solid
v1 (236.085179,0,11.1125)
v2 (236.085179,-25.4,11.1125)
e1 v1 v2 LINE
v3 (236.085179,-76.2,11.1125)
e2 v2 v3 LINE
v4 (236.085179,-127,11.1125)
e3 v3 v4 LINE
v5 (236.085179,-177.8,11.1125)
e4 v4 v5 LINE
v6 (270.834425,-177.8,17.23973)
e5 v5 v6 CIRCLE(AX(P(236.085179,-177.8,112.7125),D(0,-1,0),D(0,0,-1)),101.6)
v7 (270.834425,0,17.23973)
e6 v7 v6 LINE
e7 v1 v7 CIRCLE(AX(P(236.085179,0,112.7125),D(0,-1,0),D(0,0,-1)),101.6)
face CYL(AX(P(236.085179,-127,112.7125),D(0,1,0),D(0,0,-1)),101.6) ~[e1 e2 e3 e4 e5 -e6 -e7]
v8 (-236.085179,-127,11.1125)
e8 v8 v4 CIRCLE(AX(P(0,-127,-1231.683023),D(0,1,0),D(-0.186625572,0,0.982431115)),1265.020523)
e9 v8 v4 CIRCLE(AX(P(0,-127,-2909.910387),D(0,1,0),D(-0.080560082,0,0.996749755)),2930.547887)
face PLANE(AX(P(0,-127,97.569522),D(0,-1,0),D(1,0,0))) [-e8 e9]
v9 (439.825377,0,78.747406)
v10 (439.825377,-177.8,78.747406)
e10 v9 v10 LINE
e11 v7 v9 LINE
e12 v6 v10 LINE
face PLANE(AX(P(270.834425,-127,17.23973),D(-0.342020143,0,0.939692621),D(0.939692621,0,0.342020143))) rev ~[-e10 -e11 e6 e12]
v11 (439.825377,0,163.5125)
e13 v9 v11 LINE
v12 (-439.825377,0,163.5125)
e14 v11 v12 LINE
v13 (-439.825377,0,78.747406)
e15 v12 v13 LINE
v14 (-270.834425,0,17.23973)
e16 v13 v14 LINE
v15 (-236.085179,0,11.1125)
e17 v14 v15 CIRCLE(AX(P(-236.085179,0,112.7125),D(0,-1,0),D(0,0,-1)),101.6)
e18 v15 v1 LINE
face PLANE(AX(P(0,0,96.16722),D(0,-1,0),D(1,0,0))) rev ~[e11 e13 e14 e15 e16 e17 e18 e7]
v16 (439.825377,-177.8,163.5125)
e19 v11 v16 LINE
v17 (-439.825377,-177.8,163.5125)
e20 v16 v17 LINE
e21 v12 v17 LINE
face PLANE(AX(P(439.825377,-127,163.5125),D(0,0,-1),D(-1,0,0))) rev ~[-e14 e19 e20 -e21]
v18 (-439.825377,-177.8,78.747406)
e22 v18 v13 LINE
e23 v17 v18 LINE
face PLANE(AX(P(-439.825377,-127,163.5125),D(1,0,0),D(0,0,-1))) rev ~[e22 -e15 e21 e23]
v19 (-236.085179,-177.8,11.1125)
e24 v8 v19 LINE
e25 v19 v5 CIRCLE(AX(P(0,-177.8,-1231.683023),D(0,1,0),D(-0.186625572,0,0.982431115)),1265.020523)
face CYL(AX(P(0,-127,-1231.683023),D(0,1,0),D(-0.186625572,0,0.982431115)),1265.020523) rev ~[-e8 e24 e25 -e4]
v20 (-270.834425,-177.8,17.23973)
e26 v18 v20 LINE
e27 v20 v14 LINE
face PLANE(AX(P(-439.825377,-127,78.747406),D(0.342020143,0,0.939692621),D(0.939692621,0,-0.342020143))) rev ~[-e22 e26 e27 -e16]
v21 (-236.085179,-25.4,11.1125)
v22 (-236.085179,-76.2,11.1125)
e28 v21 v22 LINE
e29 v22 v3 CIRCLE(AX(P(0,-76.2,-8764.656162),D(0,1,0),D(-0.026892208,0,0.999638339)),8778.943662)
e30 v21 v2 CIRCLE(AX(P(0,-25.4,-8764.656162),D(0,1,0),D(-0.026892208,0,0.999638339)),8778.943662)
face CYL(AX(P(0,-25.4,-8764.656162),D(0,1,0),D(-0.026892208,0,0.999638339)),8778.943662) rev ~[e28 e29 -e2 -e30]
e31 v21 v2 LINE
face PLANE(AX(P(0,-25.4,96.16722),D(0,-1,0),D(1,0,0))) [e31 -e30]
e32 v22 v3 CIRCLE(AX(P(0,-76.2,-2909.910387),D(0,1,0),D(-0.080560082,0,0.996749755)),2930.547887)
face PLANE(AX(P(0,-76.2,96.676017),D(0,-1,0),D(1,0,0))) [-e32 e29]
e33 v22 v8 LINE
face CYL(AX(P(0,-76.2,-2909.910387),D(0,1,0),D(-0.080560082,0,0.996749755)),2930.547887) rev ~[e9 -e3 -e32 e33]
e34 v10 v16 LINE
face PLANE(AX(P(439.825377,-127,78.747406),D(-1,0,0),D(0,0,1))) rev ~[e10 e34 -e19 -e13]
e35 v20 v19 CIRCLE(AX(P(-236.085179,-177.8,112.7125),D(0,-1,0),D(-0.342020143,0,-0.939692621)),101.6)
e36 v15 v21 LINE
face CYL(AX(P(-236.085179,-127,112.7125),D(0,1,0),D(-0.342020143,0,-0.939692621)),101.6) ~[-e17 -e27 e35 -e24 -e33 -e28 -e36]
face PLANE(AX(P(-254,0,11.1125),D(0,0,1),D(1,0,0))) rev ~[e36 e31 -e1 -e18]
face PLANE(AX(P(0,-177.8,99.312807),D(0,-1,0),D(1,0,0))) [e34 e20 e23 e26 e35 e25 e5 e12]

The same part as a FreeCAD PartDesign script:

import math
import FreeCAD as App
import Part
import Sketcher
from FreeCAD import Vector
Q = App.Units.Quantity


def edges_at(feature, points):
    """Names of the edges that pass closest to the given points."""
    edges = feature.Shape.Edges
    near = lambda p: min(range(len(edges)), key=lambda i: edges[i].distToShape(Part.Vertex(*p))[0])
    return sorted({f"Edge{near(p) + 1}" for p in points})


def add_polygon(sketch, points):
    """Adds a closed chain of lines whose ends are joined by coincident constraints."""
    first, n = sketch.GeometryCount, len(points)
    for a, b in zip(points, points[1:] + points[:1]):
        sketch.addGeometry(Part.LineSegment(App.Vector(*a, 0), App.Vector(*b, 0)), False)
    for i in range(n):
        sketch.addConstraint(Sketcher.Constraint("Coincident", first + i, 2, first + (i + 1) % n, 1))

doc = App.newDocument("Part")
params = doc.addObject("Spreadsheet::Sheet", "Params")
for row, (alias, value) in enumerate([
    ("sketch1_width", "20 in"),
    ("pad1_length", "1 in"),
    ("fillet_radius", "4 in"),
    ("sketch2_radius", "4 in"),
    ("pad2_length", "2 in"),
    ("sketch3_radius", "4 in"),
    ("pad3_length", "2 in"),
    ("sketch4_radius", "4 in"),
    ("pad4_length", "2 in"),
], start=1):
    params.set(f"A{row}", alias)
    params.set(f"B{row}", "=" + value)
    params.setAlias(f"B{row}", alias)

body = doc.addObject("PartDesign::Body", "Body")

sketch1 = body.newObject("Sketcher::SketchObject", "Sketch")
sketch1.AttachmentSupport = (doc.getObject("XZ_Plane"), [""])
sketch1.MapMode = "FlatFace"
add_polygon(sketch1, [(-440, 79), (-254, 11), (254, 11), (440, 79), (440, 164), (-440, 164)])
sketch1.addConstraint([
    Sketcher.Constraint("Horizontal", 1),
    Sketcher.Constraint("Vertical", 3),
    Sketcher.Constraint("Horizontal", 4),
    Sketcher.Constraint("Vertical", 5),
    Sketcher.Constraint("Symmetric", 2, 2, 5, 2, -2),
    Sketcher.Constraint("Equal", 0, 2),
    Sketcher.Constraint("DistanceX", 1, 1, 1, 2, Q("20 in")),
    Sketcher.Constraint("Angle", 0, Q("-20 deg")),
    Sketcher.Constraint("DistanceY", 1, 2, 3, 2, Q("6 in")),
    Sketcher.Constraint("DistanceY", -1, 1, 0, 2, Q("0.4375 in")),
    Sketcher.Constraint("DistanceX", 4, 2, 4, 1, 879.650753),
])
sketch1.setExpression("Constraints[12]", "Params.sketch1_width")
pad1 = body.newObject("PartDesign::Pad", "Pad")
pad1.Profile = sketch1
pad1.setExpression("Length", "Params.pad1_length")
doc.recompute()

fillet = body.newObject("PartDesign::Fillet", "Fillet")
fillet.Base = (pad1, edges_at(pad1, [(-254, -12.7, 11.113), (254, -12.7, 11.113)]))
fillet.setExpression("Radius", "Params.fillet_radius")

sketch2 = body.newObject("Sketcher::SketchObject", "Sketch001")
sketch2.AttachmentSupport = (doc.getObject("XZ_Plane"), [""])
sketch2.MapMode = "FlatFace"
sketch2.AttachmentOffset = App.Placement(Vector(0, 0, 1 * 25.4), App.Rotation())
sketch2.addGeometry([
    Part.ArcOfCircle(Part.Circle(Vector(0, -8765, 0), Vector(0, 0, 1), 8779), math.radians(88.46), math.radians(91.54)),
    Part.ArcOfCircle(Part.Circle(Vector(236, 113, 0), Vector(0, 0, 1), 102), math.radians(-90), math.radians(-70)),
    Part.LineSegment(Vector(271, 17, 0), Vector(440, 79, 0)),
    Part.LineSegment(Vector(440, 79, 0), Vector(440, 164, 0)),
    Part.LineSegment(Vector(440, 164, 0), Vector(-440, 164, 0)),
    Part.LineSegment(Vector(-440, 164, 0), Vector(-440, 79, 0)),
    Part.LineSegment(Vector(-440, 79, 0), Vector(-271, 17, 0)),
    Part.ArcOfCircle(Part.Circle(Vector(-236, 113, 0), Vector(0, 0, 1), 102), math.radians(-110), math.radians(-90)),
], False)
sketch2.addConstraint([
    Sketcher.Constraint("Coincident", 0, 1, 1, 1),
    Sketcher.Constraint("Tangent", 1, 2, 2, 1),
    Sketcher.Constraint("Coincident", 2, 2, 3, 1),
    Sketcher.Constraint("Coincident", 3, 2, 4, 1),
    Sketcher.Constraint("Coincident", 4, 2, 5, 1),
    Sketcher.Constraint("Coincident", 5, 2, 6, 1),
    Sketcher.Constraint("Tangent", 6, 2, 7, 1),
    Sketcher.Constraint("Coincident", 7, 2, 0, 2),
    Sketcher.Constraint("Vertical", 3),
    Sketcher.Constraint("Horizontal", 4),
    Sketcher.Constraint("Vertical", 5),
    Sketcher.Constraint("Equal", 1, 7),
    Sketcher.Constraint("Symmetric", 1, 3, 7, 3, -2),
    Sketcher.Constraint("Symmetric", 2, 2, 5, 2, -2),
    Sketcher.Constraint("PointOnObject", 0, 3, -2),
    Sketcher.Constraint("Vertical", 1, 3, 0, 1),
    Sketcher.Constraint("Radius", 1, Q("4 in")),
    Sketcher.Constraint("Angle", 2, Q("20 deg")),
    Sketcher.Constraint("DistanceY", 1, 3, 3, 2, Q("2 in")),
    Sketcher.Constraint("DistanceY", -1, 1, 1, 3, Q("4.4375 in")),
    Sketcher.Constraint("Radius", 0, 8778.943662),
    Sketcher.Constraint("DistanceX", 4, 2, 4, 1, 879.650753),
    Sketcher.Constraint("DistanceY", 3, 1, 3, 2, 84.765094),
])
sketch2.setExpression("Constraints[16]", "Params.sketch2_radius")
pad2 = body.newObject("PartDesign::Pad", "Pad001")
pad2.Profile = sketch2
pad2.setExpression("Length", "Params.pad2_length")

sketch3 = body.newObject("Sketcher::SketchObject", "Sketch002")
sketch3.AttachmentSupport = (doc.getObject("XZ_Plane"), [""])
sketch3.MapMode = "FlatFace"
sketch3.AttachmentOffset = App.Placement(Vector(0, 0, 3 * 25.4), App.Rotation())
sketch3.addGeometry([
    Part.ArcOfCircle(Part.Circle(Vector(0, -2910, 0), Vector(0, 0, 1), 2931), math.radians(85.38), math.radians(94.62)),
    Part.ArcOfCircle(Part.Circle(Vector(236, 113, 0), Vector(0, 0, 1), 102), math.radians(-90), math.radians(-70)),
    Part.LineSegment(Vector(271, 17, 0), Vector(440, 79, 0)),
    Part.LineSegment(Vector(440, 79, 0), Vector(440, 164, 0)),
    Part.LineSegment(Vector(440, 164, 0), Vector(-440, 164, 0)),
    Part.LineSegment(Vector(-440, 164, 0), Vector(-440, 79, 0)),
    Part.LineSegment(Vector(-440, 79, 0), Vector(-271, 17, 0)),
    Part.ArcOfCircle(Part.Circle(Vector(-236, 113, 0), Vector(0, 0, 1), 102), math.radians(-110), math.radians(-90)),
], False)
sketch3.addConstraint([
    Sketcher.Constraint("Coincident", 0, 1, 1, 1),
    Sketcher.Constraint("Tangent", 1, 2, 2, 1),
    Sketcher.Constraint("Coincident", 2, 2, 3, 1),
    Sketcher.Constraint("Coincident", 3, 2, 4, 1),
    Sketcher.Constraint("Coincident", 4, 2, 5, 1),
    Sketcher.Constraint("Coincident", 5, 2, 6, 1),
    Sketcher.Constraint("Tangent", 6, 2, 7, 1),
    Sketcher.Constraint("Coincident", 7, 2, 0, 2),
    Sketcher.Constraint("Vertical", 3),
    Sketcher.Constraint("Horizontal", 4),
    Sketcher.Constraint("Vertical", 5),
    Sketcher.Constraint("Equal", 1, 7),
    Sketcher.Constraint("Symmetric", 1, 3, 7, 3, -2),
    Sketcher.Constraint("Symmetric", 2, 2, 5, 2, -2),
    Sketcher.Constraint("PointOnObject", 0, 3, -2),
    Sketcher.Constraint("Vertical", 1, 3, 0, 1),
    Sketcher.Constraint("Radius", 1, Q("4 in")),
    Sketcher.Constraint("Angle", 2, Q("20 deg")),
    Sketcher.Constraint("DistanceY", 1, 3, 3, 2, Q("2 in")),
    Sketcher.Constraint("DistanceY", -1, 1, 1, 3, Q("4.4375 in")),
    Sketcher.Constraint("Radius", 0, 2930.547887),
    Sketcher.Constraint("DistanceX", 4, 2, 4, 1, 879.650753),
    Sketcher.Constraint("DistanceY", 3, 1, 3, 2, 84.765094),
])
sketch3.setExpression("Constraints[16]", "Params.sketch3_radius")
pad3 = body.newObject("PartDesign::Pad", "Pad002")
pad3.Profile = sketch3
pad3.setExpression("Length", "Params.pad3_length")

sketch4 = body.newObject("Sketcher::SketchObject", "Sketch003")
sketch4.AttachmentSupport = (doc.getObject("XZ_Plane"), [""])
sketch4.MapMode = "FlatFace"
sketch4.AttachmentOffset = App.Placement(Vector(0, 0, 5 * 25.4), App.Rotation())
sketch4.addGeometry([
    Part.ArcOfCircle(Part.Circle(Vector(0, -1232, 0), Vector(0, 0, 1), 1265), math.radians(79), math.radians(101)),
    Part.ArcOfCircle(Part.Circle(Vector(236, 113, 0), Vector(0, 0, 1), 102), math.radians(-90), math.radians(-70)),
    Part.LineSegment(Vector(271, 17, 0), Vector(440, 79, 0)),
    Part.LineSegment(Vector(440, 79, 0), Vector(440, 164, 0)),
    Part.LineSegment(Vector(440, 164, 0), Vector(-440, 164, 0)),
    Part.LineSegment(Vector(-440, 164, 0), Vector(-440, 79, 0)),
    Part.LineSegment(Vector(-440, 79, 0), Vector(-271, 17, 0)),
    Part.ArcOfCircle(Part.Circle(Vector(-236, 113, 0), Vector(0, 0, 1), 102), math.radians(-110), math.radians(-90)),
], False)
sketch4.addConstraint([
    Sketcher.Constraint("Coincident", 0, 1, 1, 1),
    Sketcher.Constraint("Tangent", 1, 2, 2, 1),
    Sketcher.Constraint("Coincident", 2, 2, 3, 1),
    Sketcher.Constraint("Coincident", 3, 2, 4, 1),
    Sketcher.Constraint("Coincident", 4, 2, 5, 1),
    Sketcher.Constraint("Coincident", 5, 2, 6, 1),
    Sketcher.Constraint("Tangent", 6, 2, 7, 1),
    Sketcher.Constraint("Coincident", 7, 2, 0, 2),
    Sketcher.Constraint("Vertical", 3),
    Sketcher.Constraint("Horizontal", 4),
    Sketcher.Constraint("Vertical", 5),
    Sketcher.Constraint("Equal", 1, 7),
    Sketcher.Constraint("Symmetric", 1, 3, 7, 3, -2),
    Sketcher.Constraint("Symmetric", 2, 2, 5, 2, -2),
    Sketcher.Constraint("PointOnObject", 0, 3, -2),
    Sketcher.Constraint("Vertical", 1, 3, 0, 1),
    Sketcher.Constraint("Radius", 1, Q("4 in")),
    Sketcher.Constraint("Angle", 2, Q("20 deg")),
    Sketcher.Constraint("DistanceY", 1, 3, 3, 2, Q("2 in")),
    Sketcher.Constraint("DistanceY", -1, 1, 1, 3, Q("4.4375 in")),
    Sketcher.Constraint("Radius", 0, 1265.020523),
    Sketcher.Constraint("DistanceX", 4, 2, 4, 1, 879.650753),
    Sketcher.Constraint("DistanceY", 3, 1, 3, 2, 84.765094),
])
sketch4.setExpression("Constraints[16]", "Params.sketch4_radius")
pad4 = body.newObject("PartDesign::Pad", "Pad003")
pad4.Profile = sketch4
pad4.setExpression("Length", "Params.pad4_length")

doc.recompute()
